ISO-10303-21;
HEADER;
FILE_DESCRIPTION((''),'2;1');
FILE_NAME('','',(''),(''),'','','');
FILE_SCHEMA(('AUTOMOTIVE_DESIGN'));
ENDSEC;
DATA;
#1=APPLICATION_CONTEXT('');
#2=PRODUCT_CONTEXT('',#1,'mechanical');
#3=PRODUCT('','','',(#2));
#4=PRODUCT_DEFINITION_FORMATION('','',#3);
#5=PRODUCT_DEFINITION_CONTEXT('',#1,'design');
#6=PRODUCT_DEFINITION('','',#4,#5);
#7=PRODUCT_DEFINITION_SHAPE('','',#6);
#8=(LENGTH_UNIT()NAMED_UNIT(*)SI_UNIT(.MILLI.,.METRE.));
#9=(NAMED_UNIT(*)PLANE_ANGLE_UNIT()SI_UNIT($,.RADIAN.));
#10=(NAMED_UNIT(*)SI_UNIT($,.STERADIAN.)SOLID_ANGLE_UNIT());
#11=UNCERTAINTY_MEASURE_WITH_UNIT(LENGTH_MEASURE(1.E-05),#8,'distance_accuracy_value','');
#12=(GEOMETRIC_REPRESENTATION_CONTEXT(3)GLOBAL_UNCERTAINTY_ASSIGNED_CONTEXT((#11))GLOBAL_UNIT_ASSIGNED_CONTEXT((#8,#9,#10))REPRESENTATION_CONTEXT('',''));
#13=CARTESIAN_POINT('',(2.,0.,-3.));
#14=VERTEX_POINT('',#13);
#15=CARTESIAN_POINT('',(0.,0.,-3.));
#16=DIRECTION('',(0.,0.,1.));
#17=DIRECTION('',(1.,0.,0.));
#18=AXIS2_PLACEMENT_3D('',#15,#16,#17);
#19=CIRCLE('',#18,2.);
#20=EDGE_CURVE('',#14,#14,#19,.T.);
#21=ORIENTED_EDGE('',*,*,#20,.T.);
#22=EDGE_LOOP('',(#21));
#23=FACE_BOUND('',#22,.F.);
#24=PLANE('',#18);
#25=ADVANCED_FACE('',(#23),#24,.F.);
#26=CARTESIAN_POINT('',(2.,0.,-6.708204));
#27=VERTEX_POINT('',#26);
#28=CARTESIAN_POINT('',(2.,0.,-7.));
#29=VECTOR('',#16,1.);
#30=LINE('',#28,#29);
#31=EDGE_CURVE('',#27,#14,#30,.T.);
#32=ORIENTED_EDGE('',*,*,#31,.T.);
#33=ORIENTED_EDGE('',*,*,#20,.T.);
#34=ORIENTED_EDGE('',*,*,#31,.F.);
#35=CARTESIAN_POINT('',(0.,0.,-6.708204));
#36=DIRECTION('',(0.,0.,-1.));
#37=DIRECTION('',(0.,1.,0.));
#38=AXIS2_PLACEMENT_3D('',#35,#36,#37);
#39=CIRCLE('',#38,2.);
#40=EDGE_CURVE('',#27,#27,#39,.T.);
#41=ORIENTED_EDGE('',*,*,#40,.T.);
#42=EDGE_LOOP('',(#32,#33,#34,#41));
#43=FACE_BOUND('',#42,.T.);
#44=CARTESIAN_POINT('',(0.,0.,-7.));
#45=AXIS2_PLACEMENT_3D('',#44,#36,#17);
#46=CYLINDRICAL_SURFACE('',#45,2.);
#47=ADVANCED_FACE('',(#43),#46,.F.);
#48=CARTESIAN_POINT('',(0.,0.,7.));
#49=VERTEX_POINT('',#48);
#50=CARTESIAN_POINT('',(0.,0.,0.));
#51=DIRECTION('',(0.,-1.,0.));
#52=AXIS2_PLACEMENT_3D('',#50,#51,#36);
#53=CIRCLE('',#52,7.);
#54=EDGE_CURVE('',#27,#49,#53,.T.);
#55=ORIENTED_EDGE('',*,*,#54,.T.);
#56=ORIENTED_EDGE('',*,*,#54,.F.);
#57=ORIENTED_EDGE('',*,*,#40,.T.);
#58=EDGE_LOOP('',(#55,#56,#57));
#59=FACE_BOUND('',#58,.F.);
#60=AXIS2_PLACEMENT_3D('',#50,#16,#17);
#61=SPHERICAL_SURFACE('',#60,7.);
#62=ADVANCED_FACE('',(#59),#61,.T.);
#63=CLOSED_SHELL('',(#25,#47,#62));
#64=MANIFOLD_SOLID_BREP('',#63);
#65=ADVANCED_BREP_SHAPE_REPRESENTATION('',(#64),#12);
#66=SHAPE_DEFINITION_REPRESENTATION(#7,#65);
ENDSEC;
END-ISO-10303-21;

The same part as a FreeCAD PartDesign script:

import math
import FreeCAD as App
import Part
import Sketcher
from FreeCAD import Vector

doc = App.newDocument("Part")
params = doc.addObject("Spreadsheet::Sheet", "Params")
for row, (alias, value) in enumerate([
    ("sketch1_radius", "7 mm"),
    ("revolution_angle", "360 deg"),
    ("sketch2_diameter", "4 mm"),
    ("pocket1_length", "4 mm"),
], start=1):
    params.set(f"A{row}", alias)
    params.set(f"B{row}", "=" + value)
    params.setAlias(f"B{row}", alias)

body = doc.addObject("PartDesign::Body", "Body")

# Sketch on XZ plane
sketch1 = body.newObject("Sketcher::SketchObject", "Sketch")
sketch1.AttachmentSupport = (doc.getObject("XZ_Plane"), [""])
sketch1.MapMode = "FlatFace"
sketch1.addGeometry(Part.ArcOfCircle(Part.Circle(Vector(0, 0, 0), Vector(0, 0, 1), 7), math.radians(-90), math.radians(90)), False)
sketch1.addGeometry(Part.LineSegment(Vector(0, 7, 0), Vector(0, -7, 0)), False)
sketch1.addConstraint(Sketcher.Constraint("Coincident", 0, 1, 1, 2))
sketch1.addConstraint(Sketcher.Constraint("Coincident", 1, 1, 0, 2))
sketch1.addConstraint(Sketcher.Constraint("Vertical", 1))
sketch1.addConstraint(Sketcher.Constraint("Coincident", 0, 3, -1, 1))
sketch1.addConstraint(Sketcher.Constraint("PointOnObject", 0, 1, -2))
sketch1.addConstraint(Sketcher.Constraint("Radius", 0, 7.0))
sketch1.setExpression("Constraints[5]", "Params.sketch1_radius")
revolution = body.newObject("PartDesign::Revolution", "Revolution")
revolution.Profile = sketch1
revolution.ReferenceAxis = (sketch1, ["V_Axis"])
revolution.setExpression("Angle", "Params.revolution_angle")

# Sketch on XY plane
sketch2 = body.newObject("Sketcher::SketchObject", "Sketch001")
sketch2.AttachmentSupport = (doc.getObject("XY_Plane"), [""])
sketch2.MapMode = "FlatFace"
sketch2.AttachmentOffset = App.Placement(Vector(0, 0, -7), App.Rotation())
sketch2.addGeometry(Part.Circle(Vector(0, 0, 0), Vector(0, 0, 1), 2), False)
sketch2.addConstraint(Sketcher.Constraint("Coincident", 0, 3, -1, 1))
sketch2.addConstraint(Sketcher.Constraint("Diameter", 0, 4.0))
sketch2.setExpression("Constraints[1]", "Params.sketch2_diameter")
pocket1 = body.newObject("PartDesign::Pocket", "Pocket")
pocket1.Profile = sketch2
pocket1.setExpression("Length", "Params.pocket1_length")
pocket1.Reversed = True

doc.recompute()
